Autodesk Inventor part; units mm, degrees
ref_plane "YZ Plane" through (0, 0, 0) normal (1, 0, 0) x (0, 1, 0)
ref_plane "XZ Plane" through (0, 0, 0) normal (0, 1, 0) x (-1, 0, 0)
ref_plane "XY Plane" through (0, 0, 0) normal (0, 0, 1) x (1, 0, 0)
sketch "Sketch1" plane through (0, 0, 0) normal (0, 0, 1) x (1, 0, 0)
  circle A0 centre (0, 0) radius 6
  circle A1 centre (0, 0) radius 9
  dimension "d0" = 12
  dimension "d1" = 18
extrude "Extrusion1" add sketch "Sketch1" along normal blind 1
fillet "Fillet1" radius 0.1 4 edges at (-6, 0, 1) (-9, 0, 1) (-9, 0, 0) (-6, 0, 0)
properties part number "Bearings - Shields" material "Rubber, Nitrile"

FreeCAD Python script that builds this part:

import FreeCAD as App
import Part
import Sketcher
from FreeCAD import Vector


def edges_at(feature, points):
    """Names of the edges that pass closest to the given points."""
    edges = feature.Shape.Edges
    near = lambda p: min(range(len(edges)), key=lambda i: edges[i].distToShape(Part.Vertex(*p))[0])
    return sorted({f"Edge{near(p) + 1}" for p in points})

doc = App.newDocument("Part")
body = doc.addObject("PartDesign::Body", "Body")

# Sketch on XY plane
sketch1 = doc.addObject("Sketcher::SketchObject", "Sketch")
body.addObject(sketch1)
sketch1.AttachmentSupport = (doc.XY_Plane, [""])
sketch1.MapMode = "FlatFace"
sketch1.addGeometry([
    Part.Circle(Vector(0, 0, 0), Vector(0, 0, 1), 9),
    Part.Circle(Vector(0, 0, 0), Vector(0, 0, 1), 6),
], False)
sketch1.addConstraint([
    Sketcher.Constraint("Coincident", 0, 3, -1, 1),
    Sketcher.Constraint("Coincident", 1, 3, -1, 1),
    Sketcher.Constraint("Diameter", 0, 18.0),
    Sketcher.Constraint("Diameter", 1, 12.0),
])
pad1 = doc.addObject("PartDesign::Pad", "Pad")
body.addObject(pad1)
pad1.Profile = sketch1
pad1.Length = 1
doc.recompute()

fillet = doc.addObject("PartDesign::Fillet", "Fillet")
body.addObject(fillet)
fillet.Base = (pad1, edges_at(pad1, [
    (-6, 0, 1),
    (-9, 0, 1),
    (-9, 0, 0),
    (-6, 0, 0),
]))
fillet.Radius = 0.1

doc.recompute()
